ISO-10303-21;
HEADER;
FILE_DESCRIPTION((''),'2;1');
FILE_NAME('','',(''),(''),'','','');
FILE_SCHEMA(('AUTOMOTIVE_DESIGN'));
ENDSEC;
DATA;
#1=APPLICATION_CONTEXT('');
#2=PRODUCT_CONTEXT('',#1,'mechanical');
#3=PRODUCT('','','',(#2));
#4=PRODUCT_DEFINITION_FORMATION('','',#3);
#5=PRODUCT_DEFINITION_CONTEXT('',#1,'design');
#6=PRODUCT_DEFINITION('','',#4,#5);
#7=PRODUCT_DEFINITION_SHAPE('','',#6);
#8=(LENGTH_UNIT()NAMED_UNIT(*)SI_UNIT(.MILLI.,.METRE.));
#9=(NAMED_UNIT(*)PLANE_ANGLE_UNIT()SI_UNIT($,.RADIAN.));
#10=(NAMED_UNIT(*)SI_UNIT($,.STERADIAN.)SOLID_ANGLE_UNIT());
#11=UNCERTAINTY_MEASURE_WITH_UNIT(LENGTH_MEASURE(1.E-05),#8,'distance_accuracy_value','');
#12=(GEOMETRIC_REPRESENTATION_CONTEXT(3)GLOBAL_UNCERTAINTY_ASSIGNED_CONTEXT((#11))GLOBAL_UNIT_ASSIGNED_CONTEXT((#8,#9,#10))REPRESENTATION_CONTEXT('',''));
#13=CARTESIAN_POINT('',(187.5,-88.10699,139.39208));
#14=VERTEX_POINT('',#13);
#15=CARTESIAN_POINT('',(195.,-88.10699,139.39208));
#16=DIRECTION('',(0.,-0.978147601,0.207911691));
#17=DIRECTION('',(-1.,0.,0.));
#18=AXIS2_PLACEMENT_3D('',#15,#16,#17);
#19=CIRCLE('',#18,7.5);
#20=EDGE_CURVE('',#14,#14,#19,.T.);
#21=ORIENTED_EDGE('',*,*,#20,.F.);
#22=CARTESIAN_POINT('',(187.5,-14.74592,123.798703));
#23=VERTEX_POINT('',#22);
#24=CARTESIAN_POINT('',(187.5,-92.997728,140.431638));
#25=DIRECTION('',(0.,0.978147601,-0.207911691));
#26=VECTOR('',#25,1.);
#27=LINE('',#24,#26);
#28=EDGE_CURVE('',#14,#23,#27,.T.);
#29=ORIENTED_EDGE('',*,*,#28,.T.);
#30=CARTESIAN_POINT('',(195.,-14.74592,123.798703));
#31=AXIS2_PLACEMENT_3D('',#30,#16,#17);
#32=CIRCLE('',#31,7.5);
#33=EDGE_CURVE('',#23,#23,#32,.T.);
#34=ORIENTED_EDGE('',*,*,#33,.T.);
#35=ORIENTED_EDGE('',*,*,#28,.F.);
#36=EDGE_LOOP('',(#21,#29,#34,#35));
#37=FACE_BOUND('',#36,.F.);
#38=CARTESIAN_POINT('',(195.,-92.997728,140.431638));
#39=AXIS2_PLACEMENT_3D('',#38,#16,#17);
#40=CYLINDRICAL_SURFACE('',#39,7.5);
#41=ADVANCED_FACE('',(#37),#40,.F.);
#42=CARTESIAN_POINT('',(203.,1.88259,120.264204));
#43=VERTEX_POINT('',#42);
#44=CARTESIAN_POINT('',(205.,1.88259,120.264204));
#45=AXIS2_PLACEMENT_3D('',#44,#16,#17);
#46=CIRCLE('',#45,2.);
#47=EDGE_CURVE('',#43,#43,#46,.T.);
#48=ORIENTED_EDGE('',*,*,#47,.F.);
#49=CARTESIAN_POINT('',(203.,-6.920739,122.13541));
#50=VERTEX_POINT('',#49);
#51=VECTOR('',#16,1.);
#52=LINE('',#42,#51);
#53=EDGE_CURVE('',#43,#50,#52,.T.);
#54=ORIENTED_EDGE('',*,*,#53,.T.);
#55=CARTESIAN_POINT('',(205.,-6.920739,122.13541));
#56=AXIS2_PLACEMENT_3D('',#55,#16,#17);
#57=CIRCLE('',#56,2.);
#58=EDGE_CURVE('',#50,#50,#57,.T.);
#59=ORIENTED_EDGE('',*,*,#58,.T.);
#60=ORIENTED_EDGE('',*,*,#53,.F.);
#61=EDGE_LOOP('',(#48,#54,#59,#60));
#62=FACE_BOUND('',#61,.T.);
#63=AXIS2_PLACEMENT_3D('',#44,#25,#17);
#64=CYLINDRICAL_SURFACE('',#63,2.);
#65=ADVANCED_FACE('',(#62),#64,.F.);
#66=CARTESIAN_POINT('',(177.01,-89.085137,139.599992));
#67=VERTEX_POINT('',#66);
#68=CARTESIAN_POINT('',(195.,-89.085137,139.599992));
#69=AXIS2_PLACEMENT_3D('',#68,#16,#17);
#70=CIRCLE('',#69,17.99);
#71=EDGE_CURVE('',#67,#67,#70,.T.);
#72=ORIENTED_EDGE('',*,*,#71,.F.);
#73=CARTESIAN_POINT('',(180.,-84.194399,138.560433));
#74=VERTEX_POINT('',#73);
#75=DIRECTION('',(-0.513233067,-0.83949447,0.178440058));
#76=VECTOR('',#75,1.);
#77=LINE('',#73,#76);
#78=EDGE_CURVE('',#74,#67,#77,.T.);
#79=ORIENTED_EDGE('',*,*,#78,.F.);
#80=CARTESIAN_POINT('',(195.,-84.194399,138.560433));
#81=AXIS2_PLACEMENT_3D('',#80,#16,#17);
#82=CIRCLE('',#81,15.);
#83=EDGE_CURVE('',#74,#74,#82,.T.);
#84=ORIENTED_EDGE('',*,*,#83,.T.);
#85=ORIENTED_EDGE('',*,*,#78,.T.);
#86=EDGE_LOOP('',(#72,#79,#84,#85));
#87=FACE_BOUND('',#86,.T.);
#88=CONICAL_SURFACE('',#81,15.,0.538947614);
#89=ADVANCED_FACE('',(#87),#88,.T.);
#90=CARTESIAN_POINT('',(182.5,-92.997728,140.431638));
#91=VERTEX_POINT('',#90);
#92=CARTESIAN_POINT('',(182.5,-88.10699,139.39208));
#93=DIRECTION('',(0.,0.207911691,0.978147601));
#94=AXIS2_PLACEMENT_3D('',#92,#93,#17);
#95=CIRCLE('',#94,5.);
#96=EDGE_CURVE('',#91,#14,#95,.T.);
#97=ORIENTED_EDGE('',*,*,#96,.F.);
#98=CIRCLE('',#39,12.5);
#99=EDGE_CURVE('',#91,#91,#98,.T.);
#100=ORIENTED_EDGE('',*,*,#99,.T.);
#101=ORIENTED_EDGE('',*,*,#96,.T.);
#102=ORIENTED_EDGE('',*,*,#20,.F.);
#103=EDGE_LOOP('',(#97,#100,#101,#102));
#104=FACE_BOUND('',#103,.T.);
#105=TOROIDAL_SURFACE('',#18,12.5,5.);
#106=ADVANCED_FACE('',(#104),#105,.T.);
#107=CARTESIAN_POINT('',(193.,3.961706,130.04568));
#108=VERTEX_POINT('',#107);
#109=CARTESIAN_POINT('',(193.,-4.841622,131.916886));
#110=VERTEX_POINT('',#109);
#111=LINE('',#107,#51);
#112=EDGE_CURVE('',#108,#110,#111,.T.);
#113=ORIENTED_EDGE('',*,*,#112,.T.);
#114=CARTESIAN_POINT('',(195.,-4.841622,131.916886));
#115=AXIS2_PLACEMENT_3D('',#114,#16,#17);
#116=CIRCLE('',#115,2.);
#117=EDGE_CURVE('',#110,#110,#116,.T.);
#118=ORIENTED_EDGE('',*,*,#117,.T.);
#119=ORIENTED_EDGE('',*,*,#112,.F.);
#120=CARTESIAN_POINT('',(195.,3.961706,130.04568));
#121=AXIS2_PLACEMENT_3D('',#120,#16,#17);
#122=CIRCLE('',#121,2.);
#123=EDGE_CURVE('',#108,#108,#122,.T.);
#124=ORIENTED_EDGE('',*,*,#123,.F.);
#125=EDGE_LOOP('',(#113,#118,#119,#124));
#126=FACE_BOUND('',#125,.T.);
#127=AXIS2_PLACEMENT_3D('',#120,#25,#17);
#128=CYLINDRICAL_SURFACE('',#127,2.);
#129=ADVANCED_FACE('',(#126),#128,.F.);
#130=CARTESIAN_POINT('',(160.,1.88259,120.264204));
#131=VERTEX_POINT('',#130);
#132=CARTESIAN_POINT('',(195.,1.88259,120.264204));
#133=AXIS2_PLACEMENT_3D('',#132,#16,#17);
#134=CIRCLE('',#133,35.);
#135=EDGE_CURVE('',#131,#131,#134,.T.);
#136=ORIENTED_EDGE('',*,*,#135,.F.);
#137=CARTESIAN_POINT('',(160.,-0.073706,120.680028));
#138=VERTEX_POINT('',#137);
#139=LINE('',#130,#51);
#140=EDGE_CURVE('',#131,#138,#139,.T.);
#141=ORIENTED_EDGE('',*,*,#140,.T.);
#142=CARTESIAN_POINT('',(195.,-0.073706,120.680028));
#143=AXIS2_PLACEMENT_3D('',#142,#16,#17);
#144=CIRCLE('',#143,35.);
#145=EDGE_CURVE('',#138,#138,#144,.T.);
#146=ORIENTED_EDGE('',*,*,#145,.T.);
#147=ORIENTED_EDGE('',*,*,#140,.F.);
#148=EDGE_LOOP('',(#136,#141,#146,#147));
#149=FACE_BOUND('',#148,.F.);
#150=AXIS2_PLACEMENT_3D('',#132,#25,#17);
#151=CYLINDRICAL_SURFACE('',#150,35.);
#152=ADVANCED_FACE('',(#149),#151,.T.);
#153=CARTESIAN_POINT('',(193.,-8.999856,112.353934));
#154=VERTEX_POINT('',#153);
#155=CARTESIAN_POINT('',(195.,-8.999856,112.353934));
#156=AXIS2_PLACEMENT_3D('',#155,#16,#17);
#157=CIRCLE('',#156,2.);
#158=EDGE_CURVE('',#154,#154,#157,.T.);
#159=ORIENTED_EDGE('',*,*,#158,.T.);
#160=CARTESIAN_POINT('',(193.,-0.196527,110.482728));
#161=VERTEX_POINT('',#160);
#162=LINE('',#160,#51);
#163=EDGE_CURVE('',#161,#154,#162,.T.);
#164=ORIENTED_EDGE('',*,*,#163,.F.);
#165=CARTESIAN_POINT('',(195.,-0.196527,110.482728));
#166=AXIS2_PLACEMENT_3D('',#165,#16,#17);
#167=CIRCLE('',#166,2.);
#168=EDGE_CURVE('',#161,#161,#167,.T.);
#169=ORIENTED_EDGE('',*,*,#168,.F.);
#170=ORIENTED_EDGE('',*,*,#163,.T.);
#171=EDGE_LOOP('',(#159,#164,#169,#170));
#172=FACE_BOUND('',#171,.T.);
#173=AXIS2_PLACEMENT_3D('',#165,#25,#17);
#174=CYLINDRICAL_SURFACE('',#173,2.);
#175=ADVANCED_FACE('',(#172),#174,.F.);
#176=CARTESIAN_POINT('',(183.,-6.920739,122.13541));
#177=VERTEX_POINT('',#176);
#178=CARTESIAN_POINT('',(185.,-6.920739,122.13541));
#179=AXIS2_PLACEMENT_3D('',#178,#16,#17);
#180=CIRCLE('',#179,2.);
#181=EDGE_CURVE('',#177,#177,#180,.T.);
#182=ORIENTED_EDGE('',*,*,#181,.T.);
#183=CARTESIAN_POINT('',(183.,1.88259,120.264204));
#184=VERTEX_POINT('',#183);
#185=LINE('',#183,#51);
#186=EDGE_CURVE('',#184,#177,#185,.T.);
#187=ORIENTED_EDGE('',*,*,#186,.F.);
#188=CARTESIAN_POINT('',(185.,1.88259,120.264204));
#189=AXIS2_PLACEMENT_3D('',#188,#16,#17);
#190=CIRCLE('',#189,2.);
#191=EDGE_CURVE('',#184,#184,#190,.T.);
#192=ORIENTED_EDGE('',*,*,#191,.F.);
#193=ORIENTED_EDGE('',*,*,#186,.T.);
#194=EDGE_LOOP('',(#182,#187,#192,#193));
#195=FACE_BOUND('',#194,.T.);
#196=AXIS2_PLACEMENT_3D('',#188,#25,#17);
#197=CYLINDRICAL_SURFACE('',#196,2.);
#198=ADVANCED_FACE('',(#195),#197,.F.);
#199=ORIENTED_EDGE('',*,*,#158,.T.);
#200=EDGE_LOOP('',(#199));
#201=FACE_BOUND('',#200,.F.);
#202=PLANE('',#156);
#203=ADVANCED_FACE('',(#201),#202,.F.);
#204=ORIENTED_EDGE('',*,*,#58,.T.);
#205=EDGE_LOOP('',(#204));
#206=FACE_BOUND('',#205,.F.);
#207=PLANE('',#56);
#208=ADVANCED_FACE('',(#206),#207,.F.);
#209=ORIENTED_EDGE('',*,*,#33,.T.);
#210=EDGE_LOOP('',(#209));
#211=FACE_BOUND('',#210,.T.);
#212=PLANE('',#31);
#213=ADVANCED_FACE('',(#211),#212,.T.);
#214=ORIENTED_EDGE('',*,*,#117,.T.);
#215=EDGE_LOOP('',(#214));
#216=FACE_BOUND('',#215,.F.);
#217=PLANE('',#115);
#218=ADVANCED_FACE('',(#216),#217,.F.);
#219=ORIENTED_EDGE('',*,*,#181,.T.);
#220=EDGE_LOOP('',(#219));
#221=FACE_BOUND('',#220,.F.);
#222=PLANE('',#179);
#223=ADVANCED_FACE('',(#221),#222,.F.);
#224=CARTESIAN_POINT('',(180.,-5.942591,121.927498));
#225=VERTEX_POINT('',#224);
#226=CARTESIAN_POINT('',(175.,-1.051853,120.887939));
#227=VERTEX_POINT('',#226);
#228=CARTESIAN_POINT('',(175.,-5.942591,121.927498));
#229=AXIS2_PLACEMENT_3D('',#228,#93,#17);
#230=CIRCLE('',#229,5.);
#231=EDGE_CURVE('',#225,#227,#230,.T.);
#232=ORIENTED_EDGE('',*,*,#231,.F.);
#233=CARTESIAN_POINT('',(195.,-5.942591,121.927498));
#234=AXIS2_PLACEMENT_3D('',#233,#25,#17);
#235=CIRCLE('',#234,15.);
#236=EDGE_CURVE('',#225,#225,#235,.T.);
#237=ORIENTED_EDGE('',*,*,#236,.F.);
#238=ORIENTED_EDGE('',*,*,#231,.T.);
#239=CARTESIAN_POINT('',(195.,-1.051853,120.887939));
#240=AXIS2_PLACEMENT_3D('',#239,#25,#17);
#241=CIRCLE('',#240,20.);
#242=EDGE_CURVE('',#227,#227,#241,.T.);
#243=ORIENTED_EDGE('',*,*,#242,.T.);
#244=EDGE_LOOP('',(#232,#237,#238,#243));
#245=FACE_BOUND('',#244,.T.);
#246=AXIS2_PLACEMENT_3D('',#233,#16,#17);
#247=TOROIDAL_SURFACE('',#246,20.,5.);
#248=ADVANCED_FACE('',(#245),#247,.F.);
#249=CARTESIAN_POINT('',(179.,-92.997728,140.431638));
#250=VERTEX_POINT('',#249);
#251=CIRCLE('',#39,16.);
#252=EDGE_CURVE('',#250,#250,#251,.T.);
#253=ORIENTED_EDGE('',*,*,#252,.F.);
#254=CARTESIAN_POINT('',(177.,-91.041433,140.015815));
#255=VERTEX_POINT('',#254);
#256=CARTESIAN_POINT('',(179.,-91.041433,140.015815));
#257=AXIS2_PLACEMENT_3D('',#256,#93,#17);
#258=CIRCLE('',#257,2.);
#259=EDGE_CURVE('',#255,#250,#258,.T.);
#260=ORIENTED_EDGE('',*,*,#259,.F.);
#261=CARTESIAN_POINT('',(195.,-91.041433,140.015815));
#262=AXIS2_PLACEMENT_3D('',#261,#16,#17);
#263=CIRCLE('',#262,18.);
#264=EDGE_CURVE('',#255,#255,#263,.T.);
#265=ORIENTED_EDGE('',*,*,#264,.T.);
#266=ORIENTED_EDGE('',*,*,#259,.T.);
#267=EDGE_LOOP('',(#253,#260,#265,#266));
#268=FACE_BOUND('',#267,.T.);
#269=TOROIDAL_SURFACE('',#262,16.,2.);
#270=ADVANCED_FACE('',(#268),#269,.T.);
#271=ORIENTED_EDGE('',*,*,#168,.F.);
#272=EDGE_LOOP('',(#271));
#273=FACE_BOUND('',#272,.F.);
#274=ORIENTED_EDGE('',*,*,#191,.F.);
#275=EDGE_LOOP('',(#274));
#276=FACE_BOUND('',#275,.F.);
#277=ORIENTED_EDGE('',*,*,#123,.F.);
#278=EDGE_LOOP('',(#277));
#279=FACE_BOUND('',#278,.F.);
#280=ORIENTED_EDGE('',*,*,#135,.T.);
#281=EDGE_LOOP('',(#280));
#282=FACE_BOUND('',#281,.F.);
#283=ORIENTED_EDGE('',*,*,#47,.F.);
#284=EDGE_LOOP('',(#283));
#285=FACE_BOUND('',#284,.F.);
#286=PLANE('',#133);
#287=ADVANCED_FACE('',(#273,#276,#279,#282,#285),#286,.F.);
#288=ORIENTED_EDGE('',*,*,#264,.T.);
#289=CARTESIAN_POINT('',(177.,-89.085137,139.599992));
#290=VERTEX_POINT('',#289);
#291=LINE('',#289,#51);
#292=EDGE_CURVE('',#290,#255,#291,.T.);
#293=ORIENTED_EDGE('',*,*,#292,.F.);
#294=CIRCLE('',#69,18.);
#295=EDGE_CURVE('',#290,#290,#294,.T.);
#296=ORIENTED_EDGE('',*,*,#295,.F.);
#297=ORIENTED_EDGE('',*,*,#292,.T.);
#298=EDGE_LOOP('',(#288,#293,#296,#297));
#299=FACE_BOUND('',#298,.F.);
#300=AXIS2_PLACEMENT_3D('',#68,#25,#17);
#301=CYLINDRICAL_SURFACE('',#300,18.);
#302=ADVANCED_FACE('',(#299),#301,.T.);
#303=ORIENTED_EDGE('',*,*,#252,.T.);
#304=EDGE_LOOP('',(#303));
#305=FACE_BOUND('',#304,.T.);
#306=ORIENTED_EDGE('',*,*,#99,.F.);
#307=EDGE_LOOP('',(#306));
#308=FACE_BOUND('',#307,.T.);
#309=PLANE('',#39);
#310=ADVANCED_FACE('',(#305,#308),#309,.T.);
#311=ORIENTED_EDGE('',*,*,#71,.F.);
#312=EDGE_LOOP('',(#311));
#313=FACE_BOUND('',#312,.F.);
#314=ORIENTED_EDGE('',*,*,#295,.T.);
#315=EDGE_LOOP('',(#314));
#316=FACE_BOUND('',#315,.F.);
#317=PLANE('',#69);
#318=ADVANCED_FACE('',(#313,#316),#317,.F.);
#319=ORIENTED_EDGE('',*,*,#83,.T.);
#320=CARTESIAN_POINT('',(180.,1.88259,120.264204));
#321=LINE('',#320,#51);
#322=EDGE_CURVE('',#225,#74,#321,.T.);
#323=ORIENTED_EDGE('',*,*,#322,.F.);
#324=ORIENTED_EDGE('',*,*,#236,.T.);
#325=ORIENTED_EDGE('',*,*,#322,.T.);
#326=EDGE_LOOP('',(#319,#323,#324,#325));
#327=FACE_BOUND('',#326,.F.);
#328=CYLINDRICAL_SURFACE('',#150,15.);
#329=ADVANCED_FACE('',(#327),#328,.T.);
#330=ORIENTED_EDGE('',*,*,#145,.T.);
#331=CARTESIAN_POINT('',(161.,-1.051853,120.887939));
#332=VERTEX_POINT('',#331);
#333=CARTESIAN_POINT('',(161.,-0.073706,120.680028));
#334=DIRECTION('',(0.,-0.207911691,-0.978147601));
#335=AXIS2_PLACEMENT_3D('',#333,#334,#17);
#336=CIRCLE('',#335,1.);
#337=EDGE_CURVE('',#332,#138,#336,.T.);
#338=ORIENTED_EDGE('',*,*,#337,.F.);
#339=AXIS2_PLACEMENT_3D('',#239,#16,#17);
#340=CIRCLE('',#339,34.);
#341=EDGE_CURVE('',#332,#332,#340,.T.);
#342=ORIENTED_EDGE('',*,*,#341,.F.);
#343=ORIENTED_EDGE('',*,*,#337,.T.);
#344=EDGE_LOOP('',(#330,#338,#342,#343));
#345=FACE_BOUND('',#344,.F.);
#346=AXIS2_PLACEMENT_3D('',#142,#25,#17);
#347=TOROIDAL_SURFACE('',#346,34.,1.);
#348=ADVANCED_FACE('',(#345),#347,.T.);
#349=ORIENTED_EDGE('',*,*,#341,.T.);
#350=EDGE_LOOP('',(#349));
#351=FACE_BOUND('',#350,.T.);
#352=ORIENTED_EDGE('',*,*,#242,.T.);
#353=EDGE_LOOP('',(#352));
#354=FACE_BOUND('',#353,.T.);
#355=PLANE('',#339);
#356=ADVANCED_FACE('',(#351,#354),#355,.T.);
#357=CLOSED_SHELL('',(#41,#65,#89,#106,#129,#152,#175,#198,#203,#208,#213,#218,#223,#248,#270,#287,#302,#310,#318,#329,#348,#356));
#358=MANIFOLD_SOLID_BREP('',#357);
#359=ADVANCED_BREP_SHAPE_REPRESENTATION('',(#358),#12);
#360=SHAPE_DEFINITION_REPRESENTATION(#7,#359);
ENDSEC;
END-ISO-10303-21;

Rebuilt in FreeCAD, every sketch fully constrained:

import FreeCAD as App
import Part
import Sketcher
from FreeCAD import Vector


def edges_at(feature, points):
    """Names of the edges that pass closest to the given points."""
    edges = feature.Shape.Edges
    near = lambda p: min(range(len(edges)), key=lambda i: edges[i].distToShape(Part.Vertex(*p))[0])
    return sorted({f"Edge{near(p) + 1}" for p in points})

doc = App.newDocument("Part")
params = doc.addObject("Spreadsheet::Sheet", "Params")
for row, (alias, value) in enumerate([
    ("sketch1_diameter", "70 mm"),
    ("pad1_length", "3 mm"),
    ("sketch2_diameter", "30 mm"),
    ("pad2_length", "93 mm"),
    ("sketch3_diameter", "36 mm"),
    ("pad3_length", "4 mm"),
    ("sketch4_diameter", "15 mm"),
    ("pocket1_length", "80 mm"),
    ("sketch5_diameter", "4 mm"),
    ("pocket2_length", "9 mm"),
    ("fillet_radius", "5 mm"),
    ("fillet2_radius", "1 mm"),
    ("chamfer_size", "5 mm"),
    ("chamfer_size2", "2.99 mm"),
    ("fillet3_radius", "2 mm"),
], start=1):
    params.set(f"A{row}", alias)
    params.set(f"B{row}", "=" + value)
    params.setAlias(f"B{row}", alias)

body = doc.addObject("PartDesign::Body", "Body")

# Sketch on an angled plane
sketch1 = doc.addObject("Sketcher::SketchObject", "Sketch")
body.addObject(sketch1)
sketch1.Placement = App.Placement(Vector(0, 5.625, 137.870861), App.Rotation(Vector(-1, 0, 0), Vector(0, -0.207911691, -0.978147601), Vector(0, -0.978147601, 0.207911691), "ZXY"))
sketch1.addGeometry(Part.Circle(Vector(-195, 18, 0), Vector(0, 0, 1), 35), False)
sketch1.addConstraint([
    Sketcher.Constraint("Diameter", 0, 70.0),
    Sketcher.Constraint("DistanceX", 0, 3, -1, 1, 195.0),
    Sketcher.Constraint("DistanceY", -1, 1, 0, 3, 18.0),
])
sketch1.setExpression("Constraints[0]", "Params.sketch1_diameter")
pad1 = doc.addObject("PartDesign::Pad", "Pad")
body.addObject(pad1)
pad1.Profile = sketch1
pad1.setExpression("Length", "Params.pad1_length")

# Sketch on an angled plane
sketch2 = doc.addObject("Sketcher::SketchObject", "Sketch001")
body.addObject(sketch2)
sketch2.Placement = App.Placement(Vector(0, 5.625, 137.870861), App.Rotation(Vector(-1, 0, 0), Vector(0, -0.207911691, -0.978147601), Vector(0, -0.978147601, 0.207911691), "ZXY"))
sketch2.addGeometry(Part.Circle(Vector(-195, 18, 0), Vector(0, 0, 1), 15), False)
sketch2.addConstraint([
    Sketcher.Constraint("Diameter", 0, 30.0),
    Sketcher.Constraint("DistanceX", 0, 3, -1, 1, 195.0),
    Sketcher.Constraint("DistanceY", -1, 1, 0, 3, 18.0),
])
sketch2.setExpression("Constraints[0]", "Params.sketch2_diameter")
pad2 = doc.addObject("PartDesign::Pad", "Pad001")
body.addObject(pad2)
pad2.Profile = sketch2
pad2.setExpression("Length", "Params.pad2_length")

# Sketch on an angled plane
sketch3 = doc.addObject("Sketcher::SketchObject", "Sketch002")
body.addObject(sketch3)
sketch3.Placement = App.Placement(Vector(0, -85.342727, 157.206648), App.Rotation(Vector(-1, 0, 0), Vector(0, -0.207911691, -0.978147601), Vector(0, -0.978147601, 0.207911691), "ZXY"))
sketch3.addGeometry(Part.Circle(Vector(-195, 18, 0), Vector(0, 0, 1), 18), False)
sketch3.addConstraint([
    Sketcher.Constraint("Diameter", 0, 36.0),
    Sketcher.Constraint("DistanceX", 0, 3, -1, 1, 195.0),
    Sketcher.Constraint("DistanceY", -1, 1, 0, 3, 18.0),
])
sketch3.setExpression("Constraints[0]", "Params.sketch3_diameter")
pad3 = doc.addObject("PartDesign::Pad", "Pad002")
body.addObject(pad3)
pad3.Profile = sketch3
pad3.setExpression("Length", "Params.pad3_length")

# Sketch on an angled plane
sketch4 = doc.addObject("Sketcher::SketchObject", "Sketch003")
body.addObject(sketch4)
sketch4.Placement = App.Placement(Vector(0, -89.255317, 158.038295), App.Rotation(Vector(-1, 0, 0), Vector(0, -0.207911691, -0.978147601), Vector(0, -0.978147601, 0.207911691), "ZXY"))
sketch4.addGeometry(Part.Circle(Vector(-195, 18, 0), Vector(0, 0, 1), 8), False)
sketch4.addConstraint([
    Sketcher.Constraint("Diameter", 0, 15.0),
    Sketcher.Constraint("DistanceX", 0, 3, -1, 1, 195.0),
    Sketcher.Constraint("DistanceY", -1, 1, 0, 3, 18.0),
])
sketch4.setExpression("Constraints[0]", "Params.sketch4_diameter")
pocket1 = doc.addObject("PartDesign::Pocket", "Pocket")
body.addObject(pocket1)
pocket1.Profile = sketch4
pocket1.setExpression("Length", "Params.pocket1_length")

# Sketch on an angled plane
sketch5 = doc.addObject("Sketcher::SketchObject", "Sketch004")
body.addObject(sketch5)
sketch5.Placement = App.Placement(Vector(0, 5.625, 137.870861), App.Rotation(Vector(-1, 0, 0), Vector(0, -0.207911691, -0.978147601), Vector(0, -0.978147601, 0.207911691), "ZXY"))
sketch5.addGeometry([
    Part.Circle(Vector(-195, 28, 0), Vector(0, 0, 1), 2),
    Part.Circle(Vector(-185, 18, 0), Vector(0, 0, 1), 2),
    Part.Circle(Vector(-195, 8, 0), Vector(0, 0, 1), 2),
    Part.Circle(Vector(-205, 18, 0), Vector(0, 0, 1), 2),
], False)
sketch5.addConstraint([
    Sketcher.Constraint("Equal", 0, 1),
    Sketcher.Constraint("Equal", 1, 2),
    Sketcher.Constraint("Equal", 2, 3),
    Sketcher.Constraint("Horizontal", 1, 3, 3, 3),
    Sketcher.Constraint("Vertical", 0, 3, 2, 3),
    Sketcher.Constraint("Diameter", 0, 4.0),
    Sketcher.Constraint("DistanceX", 0, 3, -1, 1, 195.0),
    Sketcher.Constraint("DistanceY", -1, 1, 0, 3, 28.0),
    Sketcher.Constraint("DistanceX", 1, 3, -1, 1, 185.0),
    Sketcher.Constraint("DistanceY", -1, 1, 1, 3, 18.0),
    Sketcher.Constraint("DistanceY", -1, 1, 2, 3, 8.0),
    Sketcher.Constraint("DistanceX", 3, 3, -1, 1, 205.0),
])
sketch5.setExpression("Constraints[5]", "Params.sketch5_diameter")
pocket2 = doc.addObject("PartDesign::Pocket", "Pocket001")
body.addObject(pocket2)
pocket2.Profile = sketch5
pocket2.setExpression("Length", "Params.pocket2_length")
pocket2.Reversed = True
doc.recompute()

fillet = doc.addObject("PartDesign::Fillet", "Fillet")
body.addObject(fillet)
fillet.Base = (pocket2, edges_at(pocket2, [(210, -1.052, 120.888), (202.5, -92.998, 140.432)]))
fillet.setExpression("Radius", "Params.fillet_radius")
doc.recompute()

fillet2 = doc.addObject("PartDesign::Fillet", "Fillet001")
body.addObject(fillet2)
fillet2.Base = (fillet, edges_at(fillet, [(230, -1.052, 120.888)]))
fillet2.setExpression("Radius", "Params.fillet2_radius")
doc.recompute()

chamfer = doc.addObject("PartDesign::Chamfer", "Chamfer")
body.addObject(chamfer)
chamfer.Base = (fillet2, edges_at(fillet2, [(210, -89.085, 139.6)]))
chamfer.ChamferType = "Two distances"
chamfer.setExpression("Size", "Params.chamfer_size")
chamfer.setExpression("Size2", "Params.chamfer_size2")
doc.recompute()

fillet3 = doc.addObject("PartDesign::Fillet", "Fillet002")
body.addObject(fillet3)
fillet3.Base = (chamfer, edges_at(chamfer, [(213, -92.998, 140.432)]))
fillet3.setExpression("Radius", "Params.fillet3_radius")

doc.recompute()
